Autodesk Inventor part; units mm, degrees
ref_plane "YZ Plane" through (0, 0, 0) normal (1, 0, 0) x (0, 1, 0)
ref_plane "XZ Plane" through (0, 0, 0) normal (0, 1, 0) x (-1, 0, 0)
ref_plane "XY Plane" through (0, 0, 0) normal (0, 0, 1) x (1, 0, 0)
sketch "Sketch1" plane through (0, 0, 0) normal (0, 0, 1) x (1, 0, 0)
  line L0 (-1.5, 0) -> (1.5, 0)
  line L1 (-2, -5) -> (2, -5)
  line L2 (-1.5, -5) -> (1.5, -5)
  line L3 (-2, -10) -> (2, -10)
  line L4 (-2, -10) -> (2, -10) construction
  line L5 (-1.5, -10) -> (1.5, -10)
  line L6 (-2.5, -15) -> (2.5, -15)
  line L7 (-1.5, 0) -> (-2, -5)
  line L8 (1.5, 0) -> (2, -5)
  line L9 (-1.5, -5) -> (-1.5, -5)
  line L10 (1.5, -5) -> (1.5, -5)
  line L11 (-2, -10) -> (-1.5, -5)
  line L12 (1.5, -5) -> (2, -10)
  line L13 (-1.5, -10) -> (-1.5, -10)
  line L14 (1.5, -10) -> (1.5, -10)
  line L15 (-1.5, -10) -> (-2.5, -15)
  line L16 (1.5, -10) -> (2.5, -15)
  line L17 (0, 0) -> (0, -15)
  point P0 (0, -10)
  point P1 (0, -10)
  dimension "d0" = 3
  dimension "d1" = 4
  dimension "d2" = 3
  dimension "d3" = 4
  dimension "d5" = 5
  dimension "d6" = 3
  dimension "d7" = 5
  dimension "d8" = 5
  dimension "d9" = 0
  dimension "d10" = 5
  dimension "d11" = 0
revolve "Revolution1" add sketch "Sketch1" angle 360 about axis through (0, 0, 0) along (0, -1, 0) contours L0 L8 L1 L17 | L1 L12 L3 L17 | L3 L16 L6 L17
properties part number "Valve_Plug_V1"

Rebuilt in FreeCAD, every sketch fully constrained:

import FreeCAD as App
import Part
import Sketcher
from FreeCAD import Vector
Q = App.Units.Quantity


def add_polygon(sketch, points):
    """Adds a closed chain of lines whose ends are joined by coincident constraints."""
    first, n = sketch.GeometryCount, len(points)
    for a, b in zip(points, points[1:] + points[:1]):
        sketch.addGeometry(Part.LineSegment(App.Vector(*a, 0), App.Vector(*b, 0)), False)
    for i in range(n):
        sketch.addConstraint(Sketcher.Constraint("Coincident", first + i, 2, first + (i + 1) % n, 1))

doc = App.newDocument("Part")
params = doc.addObject("Spreadsheet::Sheet", "Params")
for row, (alias, value) in enumerate([
    ("sketch1_width", "1.5 mm"),
    ("sketch1_width2", "2.5 mm"),
    ("sketch1_width3", "0.5 mm"),
    ("revolution_angle", "360 deg"),
], start=1):
    params.set(f"A{row}", alias)
    params.set(f"B{row}", "=" + value)
    params.setAlias(f"B{row}", alias)

body = doc.addObject("PartDesign::Body", "Body")

# Sketch on XY plane
sketch1 = body.newObject("Sketcher::SketchObject", "Sketch")
sketch1.AttachmentSupport = (doc.getObject("XY_Plane"), [""])
sketch1.MapMode = "FlatFace"
add_polygon(sketch1, [(1.5, 0), (0, 0), (0, -15), (2.5, -15), (1.5, -10), (2, -10), (1.5, -5), (2, -5)])  # lines 0-7
sketch1.addConstraint([
    Sketcher.Constraint("Horizontal", 0),
    Sketcher.Constraint("Vertical", 1),
    Sketcher.Constraint("Horizontal", 2),
    Sketcher.Constraint("Horizontal", 4),
    Sketcher.Constraint("Horizontal", 6),
    Sketcher.Constraint("Coincident", 0, 2, -1, 1),
    Sketcher.Constraint("Parallel", 5, 7),
    Sketcher.Constraint("Vertical", 3, 2, 5, 2),
    Sketcher.Constraint("Vertical", 4, 2, 6, 2),
    Sketcher.Constraint("Vertical", 5, 2, 7, 2),
    Sketcher.Constraint("DistanceY", 5, 2, -1, 1, Q("5 mm")),
    Sketcher.Constraint("DistanceY", 2, 2, 3, 2, Q("5 mm")),
    Sketcher.Constraint("DistanceX", 0, 2, 0, 1, Q("1.5 mm")),
    Sketcher.Constraint("DistanceX", 2, 1, 2, 2, Q("2.5 mm")),
    Sketcher.Constraint("DistanceX", 4, 1, 4, 2, Q("0.5 mm")),
])
sketch1.setExpression("Constraints[20]", "Params.sketch1_width")
sketch1.setExpression("Constraints[21]", "Params.sketch1_width2")
sketch1.setExpression("Constraints[22]", "Params.sketch1_width3")
revolution = body.newObject("PartDesign::Revolution", "Revolution")
revolution.Profile = sketch1
revolution.ReferenceAxis = (sketch1, ["V_Axis"])
revolution.setExpression("Angle", "Params.revolution_angle")

doc.recompute()
